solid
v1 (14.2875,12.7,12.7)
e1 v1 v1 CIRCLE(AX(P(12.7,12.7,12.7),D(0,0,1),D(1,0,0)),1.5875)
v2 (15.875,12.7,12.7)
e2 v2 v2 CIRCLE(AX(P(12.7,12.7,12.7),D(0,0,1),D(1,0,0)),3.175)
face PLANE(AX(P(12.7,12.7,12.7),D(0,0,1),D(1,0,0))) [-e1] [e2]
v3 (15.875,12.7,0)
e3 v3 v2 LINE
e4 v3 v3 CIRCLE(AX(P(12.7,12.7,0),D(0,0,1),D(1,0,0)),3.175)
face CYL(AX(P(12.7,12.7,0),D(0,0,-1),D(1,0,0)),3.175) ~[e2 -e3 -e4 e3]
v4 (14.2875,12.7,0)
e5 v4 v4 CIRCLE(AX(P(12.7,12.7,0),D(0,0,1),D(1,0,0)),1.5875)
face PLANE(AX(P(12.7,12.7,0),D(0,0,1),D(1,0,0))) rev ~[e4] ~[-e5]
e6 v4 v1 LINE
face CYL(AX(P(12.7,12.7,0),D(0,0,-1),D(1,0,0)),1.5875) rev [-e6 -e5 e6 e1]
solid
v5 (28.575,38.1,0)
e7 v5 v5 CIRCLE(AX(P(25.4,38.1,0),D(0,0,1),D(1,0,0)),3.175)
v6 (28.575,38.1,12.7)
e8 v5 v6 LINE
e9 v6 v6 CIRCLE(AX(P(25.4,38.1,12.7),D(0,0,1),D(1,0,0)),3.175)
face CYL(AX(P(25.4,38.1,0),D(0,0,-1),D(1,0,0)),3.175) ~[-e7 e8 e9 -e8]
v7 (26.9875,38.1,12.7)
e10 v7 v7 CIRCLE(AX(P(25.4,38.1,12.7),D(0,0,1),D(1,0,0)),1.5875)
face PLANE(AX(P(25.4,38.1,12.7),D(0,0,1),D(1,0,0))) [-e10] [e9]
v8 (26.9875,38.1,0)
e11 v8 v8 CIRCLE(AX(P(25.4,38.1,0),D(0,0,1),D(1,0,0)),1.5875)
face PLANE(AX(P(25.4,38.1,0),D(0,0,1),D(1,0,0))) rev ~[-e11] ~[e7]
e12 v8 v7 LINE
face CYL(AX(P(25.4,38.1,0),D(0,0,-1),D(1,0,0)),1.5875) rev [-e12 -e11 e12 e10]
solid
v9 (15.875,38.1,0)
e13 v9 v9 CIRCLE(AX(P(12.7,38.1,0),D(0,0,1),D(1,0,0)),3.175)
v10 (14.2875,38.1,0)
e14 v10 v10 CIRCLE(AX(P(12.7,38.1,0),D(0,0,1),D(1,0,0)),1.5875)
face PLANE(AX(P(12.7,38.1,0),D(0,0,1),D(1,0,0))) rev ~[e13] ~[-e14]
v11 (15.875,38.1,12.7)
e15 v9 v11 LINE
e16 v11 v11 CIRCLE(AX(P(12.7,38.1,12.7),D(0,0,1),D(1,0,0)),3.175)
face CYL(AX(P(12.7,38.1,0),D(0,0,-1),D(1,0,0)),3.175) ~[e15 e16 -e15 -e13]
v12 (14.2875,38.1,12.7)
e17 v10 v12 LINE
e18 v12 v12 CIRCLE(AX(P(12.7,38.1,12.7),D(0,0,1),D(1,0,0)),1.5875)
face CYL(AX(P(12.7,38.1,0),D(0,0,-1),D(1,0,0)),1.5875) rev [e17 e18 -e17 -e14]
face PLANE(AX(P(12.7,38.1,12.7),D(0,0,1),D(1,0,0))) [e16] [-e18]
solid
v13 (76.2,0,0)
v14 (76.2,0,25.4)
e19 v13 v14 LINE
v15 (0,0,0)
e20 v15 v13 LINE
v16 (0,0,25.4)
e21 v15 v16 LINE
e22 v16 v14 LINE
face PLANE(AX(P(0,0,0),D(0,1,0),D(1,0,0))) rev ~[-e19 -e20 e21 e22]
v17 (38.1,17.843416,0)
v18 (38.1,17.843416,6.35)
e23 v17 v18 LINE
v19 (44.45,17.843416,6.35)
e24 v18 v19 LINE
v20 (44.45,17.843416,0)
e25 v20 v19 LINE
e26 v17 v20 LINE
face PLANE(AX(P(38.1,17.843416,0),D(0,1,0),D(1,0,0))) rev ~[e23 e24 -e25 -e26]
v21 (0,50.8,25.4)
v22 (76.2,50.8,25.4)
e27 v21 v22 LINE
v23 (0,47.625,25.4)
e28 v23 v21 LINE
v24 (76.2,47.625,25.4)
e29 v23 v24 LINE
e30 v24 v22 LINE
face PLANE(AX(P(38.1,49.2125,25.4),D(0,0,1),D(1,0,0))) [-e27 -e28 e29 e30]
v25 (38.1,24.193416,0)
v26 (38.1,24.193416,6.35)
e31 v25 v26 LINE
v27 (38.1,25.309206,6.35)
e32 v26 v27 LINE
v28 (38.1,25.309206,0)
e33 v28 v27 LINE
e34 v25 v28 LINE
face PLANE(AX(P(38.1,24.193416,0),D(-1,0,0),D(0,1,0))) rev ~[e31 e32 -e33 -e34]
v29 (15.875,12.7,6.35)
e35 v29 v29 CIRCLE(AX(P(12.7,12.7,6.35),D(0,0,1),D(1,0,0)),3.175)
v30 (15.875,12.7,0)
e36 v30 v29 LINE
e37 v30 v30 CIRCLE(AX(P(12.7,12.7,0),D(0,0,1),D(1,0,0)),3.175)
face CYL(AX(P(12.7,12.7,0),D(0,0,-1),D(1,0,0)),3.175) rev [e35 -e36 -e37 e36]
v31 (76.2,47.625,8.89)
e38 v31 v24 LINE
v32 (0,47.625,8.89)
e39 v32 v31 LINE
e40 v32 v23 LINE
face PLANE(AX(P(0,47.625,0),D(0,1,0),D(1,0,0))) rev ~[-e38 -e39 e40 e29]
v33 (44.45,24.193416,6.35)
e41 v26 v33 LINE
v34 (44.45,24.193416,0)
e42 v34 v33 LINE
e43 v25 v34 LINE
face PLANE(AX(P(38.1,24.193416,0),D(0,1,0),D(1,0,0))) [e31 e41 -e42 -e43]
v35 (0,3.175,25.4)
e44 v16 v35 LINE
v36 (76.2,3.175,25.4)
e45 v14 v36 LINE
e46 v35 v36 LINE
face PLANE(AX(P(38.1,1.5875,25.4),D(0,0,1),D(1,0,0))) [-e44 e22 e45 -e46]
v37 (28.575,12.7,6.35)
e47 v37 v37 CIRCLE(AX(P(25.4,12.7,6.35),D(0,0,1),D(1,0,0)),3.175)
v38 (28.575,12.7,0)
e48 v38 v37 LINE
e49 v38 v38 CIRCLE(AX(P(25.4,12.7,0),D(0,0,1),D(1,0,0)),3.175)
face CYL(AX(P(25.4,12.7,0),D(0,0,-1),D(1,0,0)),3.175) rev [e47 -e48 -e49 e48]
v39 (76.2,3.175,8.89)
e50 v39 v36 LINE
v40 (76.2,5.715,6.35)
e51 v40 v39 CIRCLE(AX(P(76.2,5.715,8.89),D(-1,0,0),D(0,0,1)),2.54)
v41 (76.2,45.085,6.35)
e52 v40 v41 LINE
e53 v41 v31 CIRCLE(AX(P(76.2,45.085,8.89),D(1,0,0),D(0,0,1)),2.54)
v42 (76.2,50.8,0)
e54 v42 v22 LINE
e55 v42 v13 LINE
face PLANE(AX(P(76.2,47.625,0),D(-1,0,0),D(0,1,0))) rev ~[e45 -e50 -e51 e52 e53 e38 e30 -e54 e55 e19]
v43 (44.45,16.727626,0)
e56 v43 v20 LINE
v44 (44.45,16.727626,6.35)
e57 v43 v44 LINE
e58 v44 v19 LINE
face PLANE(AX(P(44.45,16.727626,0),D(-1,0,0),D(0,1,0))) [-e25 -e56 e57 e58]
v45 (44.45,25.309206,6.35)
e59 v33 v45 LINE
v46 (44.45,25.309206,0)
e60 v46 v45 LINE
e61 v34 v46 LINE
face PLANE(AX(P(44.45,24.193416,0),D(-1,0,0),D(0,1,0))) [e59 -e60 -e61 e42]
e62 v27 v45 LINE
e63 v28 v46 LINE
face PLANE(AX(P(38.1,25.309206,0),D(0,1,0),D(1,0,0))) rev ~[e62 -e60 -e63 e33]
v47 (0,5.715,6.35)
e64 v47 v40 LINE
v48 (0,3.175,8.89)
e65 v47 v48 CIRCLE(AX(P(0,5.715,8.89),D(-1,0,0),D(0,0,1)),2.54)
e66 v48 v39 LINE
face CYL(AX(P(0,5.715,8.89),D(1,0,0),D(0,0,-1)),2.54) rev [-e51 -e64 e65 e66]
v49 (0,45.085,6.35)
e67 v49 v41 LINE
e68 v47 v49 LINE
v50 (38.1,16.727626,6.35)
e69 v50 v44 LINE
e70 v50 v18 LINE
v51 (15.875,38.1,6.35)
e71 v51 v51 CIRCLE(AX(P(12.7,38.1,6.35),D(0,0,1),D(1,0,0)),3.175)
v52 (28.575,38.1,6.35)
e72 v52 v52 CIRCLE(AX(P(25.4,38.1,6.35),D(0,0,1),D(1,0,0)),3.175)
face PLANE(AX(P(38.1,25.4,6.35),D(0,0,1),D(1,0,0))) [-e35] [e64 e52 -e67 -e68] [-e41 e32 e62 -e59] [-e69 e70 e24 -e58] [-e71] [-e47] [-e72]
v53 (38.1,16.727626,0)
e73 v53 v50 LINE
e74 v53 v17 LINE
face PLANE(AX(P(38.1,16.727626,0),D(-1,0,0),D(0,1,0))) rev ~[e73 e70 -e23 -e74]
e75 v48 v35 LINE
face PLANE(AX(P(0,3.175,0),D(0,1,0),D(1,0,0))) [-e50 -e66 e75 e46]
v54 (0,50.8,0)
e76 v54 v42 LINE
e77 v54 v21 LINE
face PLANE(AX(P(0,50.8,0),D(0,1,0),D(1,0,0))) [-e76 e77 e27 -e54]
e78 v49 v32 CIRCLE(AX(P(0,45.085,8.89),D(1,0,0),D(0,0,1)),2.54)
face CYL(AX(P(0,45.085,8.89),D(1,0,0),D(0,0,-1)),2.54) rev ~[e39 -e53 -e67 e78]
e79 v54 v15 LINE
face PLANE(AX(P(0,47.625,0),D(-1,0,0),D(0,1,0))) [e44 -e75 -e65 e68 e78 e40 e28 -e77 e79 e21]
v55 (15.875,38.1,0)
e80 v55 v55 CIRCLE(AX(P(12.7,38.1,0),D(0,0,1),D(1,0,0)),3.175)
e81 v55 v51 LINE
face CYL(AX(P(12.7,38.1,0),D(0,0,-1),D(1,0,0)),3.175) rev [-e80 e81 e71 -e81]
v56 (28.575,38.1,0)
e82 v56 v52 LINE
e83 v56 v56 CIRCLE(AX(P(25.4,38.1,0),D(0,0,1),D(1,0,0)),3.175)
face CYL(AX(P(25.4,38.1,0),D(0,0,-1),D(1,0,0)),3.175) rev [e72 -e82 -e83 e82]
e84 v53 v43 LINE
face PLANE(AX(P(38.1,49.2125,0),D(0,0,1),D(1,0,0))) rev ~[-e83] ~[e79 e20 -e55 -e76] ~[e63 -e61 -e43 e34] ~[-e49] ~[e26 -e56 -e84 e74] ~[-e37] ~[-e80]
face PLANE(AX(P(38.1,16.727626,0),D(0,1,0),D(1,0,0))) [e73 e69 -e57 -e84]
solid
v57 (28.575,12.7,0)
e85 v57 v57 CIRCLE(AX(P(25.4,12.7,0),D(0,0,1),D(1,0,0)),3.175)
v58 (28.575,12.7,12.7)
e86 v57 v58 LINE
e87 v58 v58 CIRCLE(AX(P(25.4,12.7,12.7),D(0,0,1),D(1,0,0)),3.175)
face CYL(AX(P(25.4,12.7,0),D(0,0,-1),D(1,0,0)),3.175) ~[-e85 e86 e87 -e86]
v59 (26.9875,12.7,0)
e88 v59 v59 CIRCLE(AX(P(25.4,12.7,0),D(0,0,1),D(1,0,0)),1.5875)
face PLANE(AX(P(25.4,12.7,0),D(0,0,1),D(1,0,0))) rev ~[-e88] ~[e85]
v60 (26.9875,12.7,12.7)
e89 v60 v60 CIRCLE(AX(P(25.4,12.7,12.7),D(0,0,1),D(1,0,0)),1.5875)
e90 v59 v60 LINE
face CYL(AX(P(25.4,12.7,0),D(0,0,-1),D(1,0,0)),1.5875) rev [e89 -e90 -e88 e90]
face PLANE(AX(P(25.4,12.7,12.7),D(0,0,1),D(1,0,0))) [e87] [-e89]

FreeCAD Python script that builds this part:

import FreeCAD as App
import Part
import Sketcher
Q = App.Units.Quantity


def edges_at(feature, points):
    """Names of the edges that pass closest to the given points."""
    edges = feature.Shape.Edges
    near = lambda p: min(range(len(edges)), key=lambda i: edges[i].distToShape(Part.Vertex(*p))[0])
    return sorted({f"Edge{near(p) + 1}" for p in points})


def add_polygon(sketch, points):
    """Adds a closed chain of lines whose ends are joined by coincident constraints."""
    first, n = sketch.GeometryCount, len(points)
    for a, b in zip(points, points[1:] + points[:1]):
        sketch.addGeometry(Part.LineSegment(App.Vector(*a, 0), App.Vector(*b, 0)), False)
    for i in range(n):
        sketch.addConstraint(Sketcher.Constraint("Coincident", first + i, 2, first + (i + 1) % n, 1))

doc = App.newDocument("Part")
params = doc.addObject("Spreadsheet::Sheet", "Params")
for row, (alias, value) in enumerate([
    ("sketch1_diameter", "0.25 in"),
    ("sketch1_diameter2", "0.125 in"),
    ("pad1_length", "0.5 in"),
    ("sketch2_diameter", "0.25 in"),
    ("sketch2_width", "3 in"),
    ("sketch2_width2", "0.25 in"),
    ("sketch2_height", "1.75 in"),
    ("pad2_length", "0.25 in"),
    ("sketch3_width", "3 in"),
    ("sketch3_height", "0.125 in"),
    ("pad3_length", "1 in"),
    ("fillet_radius", "0.1 in"),
], start=1):
    params.set(f"A{row}", alias)
    params.set(f"B{row}", "=" + value)
    params.setAlias(f"B{row}", alias)

body = doc.addObject("PartDesign::Body", "Body")
body.AllowCompound = True

sketch1 = body.newObject("Sketcher::SketchObject", "Sketch")
sketch1.AttachmentSupport = (doc.getObject("XY_Plane"), [""])
sketch1.MapMode = "FlatFace"
sketch1.addGeometry([
    Part.Circle(App.Vector(12.7, 38.1, 0), App.Vector(0, 0, 1), 3.2),
    Part.Circle(App.Vector(12.7, 38.1, 0), App.Vector(0, 0, 1), 1.6),
    Part.Circle(App.Vector(12.7, 12.7, 0), App.Vector(0, 0, 1), 3.2),
    Part.Circle(App.Vector(12.7, 12.7, 0), App.Vector(0, 0, 1), 1.6),
    Part.Circle(App.Vector(25.4, 38.1, 0), App.Vector(0, 0, 1), 3.2),
    Part.Circle(App.Vector(25.4, 38.1, 0), App.Vector(0, 0, 1), 1.6),
    Part.Circle(App.Vector(25.4, 12.7, 0), App.Vector(0, 0, 1), 3.2),
    Part.Circle(App.Vector(25.4, 12.7, 0), App.Vector(0, 0, 1), 1.6),
], False)
sketch1.addConstraint([
    Sketcher.Constraint("Coincident", 1, 3, 0, 3),
    Sketcher.Constraint("Coincident", 3, 3, 2, 3),
    Sketcher.Constraint("Coincident", 5, 3, 4, 3),
    Sketcher.Constraint("Coincident", 7, 3, 6, 3),
    Sketcher.Constraint("Equal", 0, 2),
    Sketcher.Constraint("Equal", 1, 3),
    Sketcher.Constraint("Equal", 2, 4),
    Sketcher.Constraint("Equal", 3, 5),
    Sketcher.Constraint("Equal", 4, 6),
    Sketcher.Constraint("Equal", 5, 7),
    Sketcher.Constraint("Horizontal", 1, 3, 4, 3),
    Sketcher.Constraint("Horizontal", 3, 3, 6, 3),
    Sketcher.Constraint("Vertical", 1, 3, 2, 3),
    Sketcher.Constraint("Vertical", 5, 3, 6, 3),
    Sketcher.Constraint("Diameter", 0, Q("0.25 in")),
    Sketcher.Constraint("Diameter", 1, Q("0.125 in")),
    Sketcher.Constraint("DistanceX", -1, 1, 4, 3, Q("1 in")),
    Sketcher.Constraint("DistanceY", 2, 3, 0, 3, Q("1 in")),
    Sketcher.Constraint("DistanceX", -1, 1, 0, 3, Q("0.5 in")),
    Sketcher.Constraint("DistanceY", -1, 1, 0, 3, Q("1.5 in")),
])
sketch1.setExpression("Constraints[14]", "Params.sketch1_diameter")
sketch1.setExpression("Constraints[15]", "Params.sketch1_diameter2")
pad1 = body.newObject("PartDesign::Pad", "Pad")
pad1.Profile = sketch1
pad1.setExpression("Length", "Params.pad1_length")
body2 = doc.addObject("PartDesign::Body", "Body001")

sketch2 = body2.newObject("Sketcher::SketchObject", "Sketch001")
sketch2.AttachmentSupport = (doc.getObject("XY_Plane001"), [""])
sketch2.MapMode = "FlatFace"
add_polygon(sketch2, [(0, 47.6), (0, 3.2), (76.2, 3.2), (76.2, 47.6)])
sketch2.addGeometry(Part.Circle(App.Vector(12.7, 12.7, 0), App.Vector(0, 0, 1), 3.2), False)
sketch2.addGeometry(Part.Circle(App.Vector(25.4, 12.7, 0), App.Vector(0, 0, 1), 3.2), False)
add_polygon(sketch2, [(44.5, 16.7), (38.1, 16.7), (38.1, 17.8), (44.5, 17.8)])
add_polygon(sketch2, [(44.5, 24.2), (38.1, 24.2), (38.1, 25.3), (44.5, 25.3)])
sketch2.addGeometry(Part.Circle(App.Vector(12.7, 38.1, 0), App.Vector(0, 0, 1), 3.2), False)
sketch2.addGeometry(Part.Circle(App.Vector(25.4, 38.1, 0), App.Vector(0, 0, 1), 3.2), False)
sketch2.addConstraint([
    Sketcher.Constraint("Vertical", 0),
    Sketcher.Constraint("Horizontal", 1),
    Sketcher.Constraint("Vertical", 2),
    Sketcher.Constraint("Horizontal", 3),
    Sketcher.Constraint("Horizontal", 6),
    Sketcher.Constraint("Vertical", 7),
    Sketcher.Constraint("Horizontal", 8),
    Sketcher.Constraint("Vertical", 9),
    Sketcher.Constraint("Horizontal", 10),
    Sketcher.Constraint("Vertical", 11),
    Sketcher.Constraint("Horizontal", 12),
    Sketcher.Constraint("Vertical", 13),
    Sketcher.Constraint("Equal", 4, 5),
    Sketcher.Constraint("Equal", 5, 14),
    Sketcher.Constraint("Equal", 14, 15),
    Sketcher.Constraint("PointOnObject", 0, 2, -2),
    Sketcher.Constraint("Horizontal", 4, 3, 5, 3),
    Sketcher.Constraint("Horizontal", 14, 3, 15, 3),
    Sketcher.Constraint("Vertical", 4, 3, 14, 3),
    Sketcher.Constraint("Vertical", 5, 3, 15, 3),
    Sketcher.Constraint("Vertical", 7, 2, 10, 2),
    Sketcher.Constraint("Vertical", 9, 2, 12, 2),
    Sketcher.Constraint("Equal", 9, 11),
    Sketcher.Constraint("Diameter", 4, Q("0.25 in")),
    Sketcher.Constraint("DistanceX", 1, 1, 1, 2, Q("3 in")),
    Sketcher.Constraint("DistanceX", -1, 1, 5, 3, Q("1 in")),
    Sketcher.Constraint("DistanceY", 4, 3, 14, 3, Q("1 in")),
    Sketcher.Constraint("DistanceX", 4, 3, 6, 2, Q("1 in")),
    Sketcher.Constraint("DistanceX", 6, 2, 6, 1, Q("0.25 in")),
    Sketcher.Constraint("DistanceY", 0, 2, 0, 1, Q("1.75 in")),
    Sketcher.Constraint("DistanceX", -1, 1, 4, 3, Q("0.5 in")),
    Sketcher.Constraint("DistanceY", -1, 1, 4, 3, Q("0.5 in")),
    Sketcher.Constraint("DistanceY", 7, 2, 10, 2, Q("0.25 in")),
    Sketcher.Constraint("DistanceY", -1, 1, 0, 2, Q("0.125 in")),
    Sketcher.Constraint("DistanceY", 7, 1, 7, 2, 1.11579),
    Sketcher.Constraint("DistanceY", -1, 1, 6, 2, 16.727626),
])
sketch2.setExpression("Constraints[35]", "Params.sketch2_diameter")
sketch2.setExpression("Constraints[36]", "Params.sketch2_width")
sketch2.setExpression("Constraints[40]", "Params.sketch2_width2")
sketch2.setExpression("Constraints[41]", "Params.sketch2_height")
pad2 = body2.newObject("PartDesign::Pad", "Pad001")
pad2.Profile = sketch2
pad2.setExpression("Length", "Params.pad2_length")

sketch3 = body2.newObject("Sketcher::SketchObject", "Sketch002")
sketch3.AttachmentSupport = (doc.getObject("XY_Plane001"), [""])
sketch3.MapMode = "FlatFace"
add_polygon(sketch3, [(0, 50.8), (0, 47.6), (76.2, 47.6), (76.2, 50.8)])
add_polygon(sketch3, [(0, 3.2), (0, 0), (76.2, 0), (76.2, 3.2)])
sketch3.addConstraint([
    Sketcher.Constraint("Vertical", 0),
    Sketcher.Constraint("Horizontal", 1),
    Sketcher.Constraint("Vertical", 2),
    Sketcher.Constraint("Horizontal", 3),
    Sketcher.Constraint("Vertical", 4),
    Sketcher.Constraint("Horizontal", 5),
    Sketcher.Constraint("Vertical", 6),
    Sketcher.Constraint("Horizontal", 7),
    Sketcher.Constraint("Coincident", 4, 2, -1, 1),
    Sketcher.Constraint("PointOnObject", 0, 2, -2),
    Sketcher.Constraint("Vertical", 2, 2, 5, 2),
    Sketcher.Constraint("Equal", 2, 4),
    Sketcher.Constraint("DistanceX", 1, 1, 1, 2, Q("3 in")),
    Sketcher.Constraint("DistanceY", -1, 1, 2, 2, Q("2 in")),
    Sketcher.Constraint("DistanceY", 0, 2, 0, 1, Q("0.125 in")),
])
sketch3.setExpression("Constraints[20]", "Params.sketch3_width")
sketch3.setExpression("Constraints[22]", "Params.sketch3_height")
pad3 = body2.newObject("PartDesign::Pad", "Pad002")
pad3.Profile = sketch3
pad3.setExpression("Length", "Params.pad3_length")
doc.recompute()

fillet = body2.newObject("PartDesign::Fillet", "Fillet")
fillet.Base = (pad3, edges_at(pad3, [(38.1, 47.625, 6.35), (38.1, 3.175, 6.35)]))
fillet.setExpression("Radius", "Params.fillet_radius")

doc.recompute()
